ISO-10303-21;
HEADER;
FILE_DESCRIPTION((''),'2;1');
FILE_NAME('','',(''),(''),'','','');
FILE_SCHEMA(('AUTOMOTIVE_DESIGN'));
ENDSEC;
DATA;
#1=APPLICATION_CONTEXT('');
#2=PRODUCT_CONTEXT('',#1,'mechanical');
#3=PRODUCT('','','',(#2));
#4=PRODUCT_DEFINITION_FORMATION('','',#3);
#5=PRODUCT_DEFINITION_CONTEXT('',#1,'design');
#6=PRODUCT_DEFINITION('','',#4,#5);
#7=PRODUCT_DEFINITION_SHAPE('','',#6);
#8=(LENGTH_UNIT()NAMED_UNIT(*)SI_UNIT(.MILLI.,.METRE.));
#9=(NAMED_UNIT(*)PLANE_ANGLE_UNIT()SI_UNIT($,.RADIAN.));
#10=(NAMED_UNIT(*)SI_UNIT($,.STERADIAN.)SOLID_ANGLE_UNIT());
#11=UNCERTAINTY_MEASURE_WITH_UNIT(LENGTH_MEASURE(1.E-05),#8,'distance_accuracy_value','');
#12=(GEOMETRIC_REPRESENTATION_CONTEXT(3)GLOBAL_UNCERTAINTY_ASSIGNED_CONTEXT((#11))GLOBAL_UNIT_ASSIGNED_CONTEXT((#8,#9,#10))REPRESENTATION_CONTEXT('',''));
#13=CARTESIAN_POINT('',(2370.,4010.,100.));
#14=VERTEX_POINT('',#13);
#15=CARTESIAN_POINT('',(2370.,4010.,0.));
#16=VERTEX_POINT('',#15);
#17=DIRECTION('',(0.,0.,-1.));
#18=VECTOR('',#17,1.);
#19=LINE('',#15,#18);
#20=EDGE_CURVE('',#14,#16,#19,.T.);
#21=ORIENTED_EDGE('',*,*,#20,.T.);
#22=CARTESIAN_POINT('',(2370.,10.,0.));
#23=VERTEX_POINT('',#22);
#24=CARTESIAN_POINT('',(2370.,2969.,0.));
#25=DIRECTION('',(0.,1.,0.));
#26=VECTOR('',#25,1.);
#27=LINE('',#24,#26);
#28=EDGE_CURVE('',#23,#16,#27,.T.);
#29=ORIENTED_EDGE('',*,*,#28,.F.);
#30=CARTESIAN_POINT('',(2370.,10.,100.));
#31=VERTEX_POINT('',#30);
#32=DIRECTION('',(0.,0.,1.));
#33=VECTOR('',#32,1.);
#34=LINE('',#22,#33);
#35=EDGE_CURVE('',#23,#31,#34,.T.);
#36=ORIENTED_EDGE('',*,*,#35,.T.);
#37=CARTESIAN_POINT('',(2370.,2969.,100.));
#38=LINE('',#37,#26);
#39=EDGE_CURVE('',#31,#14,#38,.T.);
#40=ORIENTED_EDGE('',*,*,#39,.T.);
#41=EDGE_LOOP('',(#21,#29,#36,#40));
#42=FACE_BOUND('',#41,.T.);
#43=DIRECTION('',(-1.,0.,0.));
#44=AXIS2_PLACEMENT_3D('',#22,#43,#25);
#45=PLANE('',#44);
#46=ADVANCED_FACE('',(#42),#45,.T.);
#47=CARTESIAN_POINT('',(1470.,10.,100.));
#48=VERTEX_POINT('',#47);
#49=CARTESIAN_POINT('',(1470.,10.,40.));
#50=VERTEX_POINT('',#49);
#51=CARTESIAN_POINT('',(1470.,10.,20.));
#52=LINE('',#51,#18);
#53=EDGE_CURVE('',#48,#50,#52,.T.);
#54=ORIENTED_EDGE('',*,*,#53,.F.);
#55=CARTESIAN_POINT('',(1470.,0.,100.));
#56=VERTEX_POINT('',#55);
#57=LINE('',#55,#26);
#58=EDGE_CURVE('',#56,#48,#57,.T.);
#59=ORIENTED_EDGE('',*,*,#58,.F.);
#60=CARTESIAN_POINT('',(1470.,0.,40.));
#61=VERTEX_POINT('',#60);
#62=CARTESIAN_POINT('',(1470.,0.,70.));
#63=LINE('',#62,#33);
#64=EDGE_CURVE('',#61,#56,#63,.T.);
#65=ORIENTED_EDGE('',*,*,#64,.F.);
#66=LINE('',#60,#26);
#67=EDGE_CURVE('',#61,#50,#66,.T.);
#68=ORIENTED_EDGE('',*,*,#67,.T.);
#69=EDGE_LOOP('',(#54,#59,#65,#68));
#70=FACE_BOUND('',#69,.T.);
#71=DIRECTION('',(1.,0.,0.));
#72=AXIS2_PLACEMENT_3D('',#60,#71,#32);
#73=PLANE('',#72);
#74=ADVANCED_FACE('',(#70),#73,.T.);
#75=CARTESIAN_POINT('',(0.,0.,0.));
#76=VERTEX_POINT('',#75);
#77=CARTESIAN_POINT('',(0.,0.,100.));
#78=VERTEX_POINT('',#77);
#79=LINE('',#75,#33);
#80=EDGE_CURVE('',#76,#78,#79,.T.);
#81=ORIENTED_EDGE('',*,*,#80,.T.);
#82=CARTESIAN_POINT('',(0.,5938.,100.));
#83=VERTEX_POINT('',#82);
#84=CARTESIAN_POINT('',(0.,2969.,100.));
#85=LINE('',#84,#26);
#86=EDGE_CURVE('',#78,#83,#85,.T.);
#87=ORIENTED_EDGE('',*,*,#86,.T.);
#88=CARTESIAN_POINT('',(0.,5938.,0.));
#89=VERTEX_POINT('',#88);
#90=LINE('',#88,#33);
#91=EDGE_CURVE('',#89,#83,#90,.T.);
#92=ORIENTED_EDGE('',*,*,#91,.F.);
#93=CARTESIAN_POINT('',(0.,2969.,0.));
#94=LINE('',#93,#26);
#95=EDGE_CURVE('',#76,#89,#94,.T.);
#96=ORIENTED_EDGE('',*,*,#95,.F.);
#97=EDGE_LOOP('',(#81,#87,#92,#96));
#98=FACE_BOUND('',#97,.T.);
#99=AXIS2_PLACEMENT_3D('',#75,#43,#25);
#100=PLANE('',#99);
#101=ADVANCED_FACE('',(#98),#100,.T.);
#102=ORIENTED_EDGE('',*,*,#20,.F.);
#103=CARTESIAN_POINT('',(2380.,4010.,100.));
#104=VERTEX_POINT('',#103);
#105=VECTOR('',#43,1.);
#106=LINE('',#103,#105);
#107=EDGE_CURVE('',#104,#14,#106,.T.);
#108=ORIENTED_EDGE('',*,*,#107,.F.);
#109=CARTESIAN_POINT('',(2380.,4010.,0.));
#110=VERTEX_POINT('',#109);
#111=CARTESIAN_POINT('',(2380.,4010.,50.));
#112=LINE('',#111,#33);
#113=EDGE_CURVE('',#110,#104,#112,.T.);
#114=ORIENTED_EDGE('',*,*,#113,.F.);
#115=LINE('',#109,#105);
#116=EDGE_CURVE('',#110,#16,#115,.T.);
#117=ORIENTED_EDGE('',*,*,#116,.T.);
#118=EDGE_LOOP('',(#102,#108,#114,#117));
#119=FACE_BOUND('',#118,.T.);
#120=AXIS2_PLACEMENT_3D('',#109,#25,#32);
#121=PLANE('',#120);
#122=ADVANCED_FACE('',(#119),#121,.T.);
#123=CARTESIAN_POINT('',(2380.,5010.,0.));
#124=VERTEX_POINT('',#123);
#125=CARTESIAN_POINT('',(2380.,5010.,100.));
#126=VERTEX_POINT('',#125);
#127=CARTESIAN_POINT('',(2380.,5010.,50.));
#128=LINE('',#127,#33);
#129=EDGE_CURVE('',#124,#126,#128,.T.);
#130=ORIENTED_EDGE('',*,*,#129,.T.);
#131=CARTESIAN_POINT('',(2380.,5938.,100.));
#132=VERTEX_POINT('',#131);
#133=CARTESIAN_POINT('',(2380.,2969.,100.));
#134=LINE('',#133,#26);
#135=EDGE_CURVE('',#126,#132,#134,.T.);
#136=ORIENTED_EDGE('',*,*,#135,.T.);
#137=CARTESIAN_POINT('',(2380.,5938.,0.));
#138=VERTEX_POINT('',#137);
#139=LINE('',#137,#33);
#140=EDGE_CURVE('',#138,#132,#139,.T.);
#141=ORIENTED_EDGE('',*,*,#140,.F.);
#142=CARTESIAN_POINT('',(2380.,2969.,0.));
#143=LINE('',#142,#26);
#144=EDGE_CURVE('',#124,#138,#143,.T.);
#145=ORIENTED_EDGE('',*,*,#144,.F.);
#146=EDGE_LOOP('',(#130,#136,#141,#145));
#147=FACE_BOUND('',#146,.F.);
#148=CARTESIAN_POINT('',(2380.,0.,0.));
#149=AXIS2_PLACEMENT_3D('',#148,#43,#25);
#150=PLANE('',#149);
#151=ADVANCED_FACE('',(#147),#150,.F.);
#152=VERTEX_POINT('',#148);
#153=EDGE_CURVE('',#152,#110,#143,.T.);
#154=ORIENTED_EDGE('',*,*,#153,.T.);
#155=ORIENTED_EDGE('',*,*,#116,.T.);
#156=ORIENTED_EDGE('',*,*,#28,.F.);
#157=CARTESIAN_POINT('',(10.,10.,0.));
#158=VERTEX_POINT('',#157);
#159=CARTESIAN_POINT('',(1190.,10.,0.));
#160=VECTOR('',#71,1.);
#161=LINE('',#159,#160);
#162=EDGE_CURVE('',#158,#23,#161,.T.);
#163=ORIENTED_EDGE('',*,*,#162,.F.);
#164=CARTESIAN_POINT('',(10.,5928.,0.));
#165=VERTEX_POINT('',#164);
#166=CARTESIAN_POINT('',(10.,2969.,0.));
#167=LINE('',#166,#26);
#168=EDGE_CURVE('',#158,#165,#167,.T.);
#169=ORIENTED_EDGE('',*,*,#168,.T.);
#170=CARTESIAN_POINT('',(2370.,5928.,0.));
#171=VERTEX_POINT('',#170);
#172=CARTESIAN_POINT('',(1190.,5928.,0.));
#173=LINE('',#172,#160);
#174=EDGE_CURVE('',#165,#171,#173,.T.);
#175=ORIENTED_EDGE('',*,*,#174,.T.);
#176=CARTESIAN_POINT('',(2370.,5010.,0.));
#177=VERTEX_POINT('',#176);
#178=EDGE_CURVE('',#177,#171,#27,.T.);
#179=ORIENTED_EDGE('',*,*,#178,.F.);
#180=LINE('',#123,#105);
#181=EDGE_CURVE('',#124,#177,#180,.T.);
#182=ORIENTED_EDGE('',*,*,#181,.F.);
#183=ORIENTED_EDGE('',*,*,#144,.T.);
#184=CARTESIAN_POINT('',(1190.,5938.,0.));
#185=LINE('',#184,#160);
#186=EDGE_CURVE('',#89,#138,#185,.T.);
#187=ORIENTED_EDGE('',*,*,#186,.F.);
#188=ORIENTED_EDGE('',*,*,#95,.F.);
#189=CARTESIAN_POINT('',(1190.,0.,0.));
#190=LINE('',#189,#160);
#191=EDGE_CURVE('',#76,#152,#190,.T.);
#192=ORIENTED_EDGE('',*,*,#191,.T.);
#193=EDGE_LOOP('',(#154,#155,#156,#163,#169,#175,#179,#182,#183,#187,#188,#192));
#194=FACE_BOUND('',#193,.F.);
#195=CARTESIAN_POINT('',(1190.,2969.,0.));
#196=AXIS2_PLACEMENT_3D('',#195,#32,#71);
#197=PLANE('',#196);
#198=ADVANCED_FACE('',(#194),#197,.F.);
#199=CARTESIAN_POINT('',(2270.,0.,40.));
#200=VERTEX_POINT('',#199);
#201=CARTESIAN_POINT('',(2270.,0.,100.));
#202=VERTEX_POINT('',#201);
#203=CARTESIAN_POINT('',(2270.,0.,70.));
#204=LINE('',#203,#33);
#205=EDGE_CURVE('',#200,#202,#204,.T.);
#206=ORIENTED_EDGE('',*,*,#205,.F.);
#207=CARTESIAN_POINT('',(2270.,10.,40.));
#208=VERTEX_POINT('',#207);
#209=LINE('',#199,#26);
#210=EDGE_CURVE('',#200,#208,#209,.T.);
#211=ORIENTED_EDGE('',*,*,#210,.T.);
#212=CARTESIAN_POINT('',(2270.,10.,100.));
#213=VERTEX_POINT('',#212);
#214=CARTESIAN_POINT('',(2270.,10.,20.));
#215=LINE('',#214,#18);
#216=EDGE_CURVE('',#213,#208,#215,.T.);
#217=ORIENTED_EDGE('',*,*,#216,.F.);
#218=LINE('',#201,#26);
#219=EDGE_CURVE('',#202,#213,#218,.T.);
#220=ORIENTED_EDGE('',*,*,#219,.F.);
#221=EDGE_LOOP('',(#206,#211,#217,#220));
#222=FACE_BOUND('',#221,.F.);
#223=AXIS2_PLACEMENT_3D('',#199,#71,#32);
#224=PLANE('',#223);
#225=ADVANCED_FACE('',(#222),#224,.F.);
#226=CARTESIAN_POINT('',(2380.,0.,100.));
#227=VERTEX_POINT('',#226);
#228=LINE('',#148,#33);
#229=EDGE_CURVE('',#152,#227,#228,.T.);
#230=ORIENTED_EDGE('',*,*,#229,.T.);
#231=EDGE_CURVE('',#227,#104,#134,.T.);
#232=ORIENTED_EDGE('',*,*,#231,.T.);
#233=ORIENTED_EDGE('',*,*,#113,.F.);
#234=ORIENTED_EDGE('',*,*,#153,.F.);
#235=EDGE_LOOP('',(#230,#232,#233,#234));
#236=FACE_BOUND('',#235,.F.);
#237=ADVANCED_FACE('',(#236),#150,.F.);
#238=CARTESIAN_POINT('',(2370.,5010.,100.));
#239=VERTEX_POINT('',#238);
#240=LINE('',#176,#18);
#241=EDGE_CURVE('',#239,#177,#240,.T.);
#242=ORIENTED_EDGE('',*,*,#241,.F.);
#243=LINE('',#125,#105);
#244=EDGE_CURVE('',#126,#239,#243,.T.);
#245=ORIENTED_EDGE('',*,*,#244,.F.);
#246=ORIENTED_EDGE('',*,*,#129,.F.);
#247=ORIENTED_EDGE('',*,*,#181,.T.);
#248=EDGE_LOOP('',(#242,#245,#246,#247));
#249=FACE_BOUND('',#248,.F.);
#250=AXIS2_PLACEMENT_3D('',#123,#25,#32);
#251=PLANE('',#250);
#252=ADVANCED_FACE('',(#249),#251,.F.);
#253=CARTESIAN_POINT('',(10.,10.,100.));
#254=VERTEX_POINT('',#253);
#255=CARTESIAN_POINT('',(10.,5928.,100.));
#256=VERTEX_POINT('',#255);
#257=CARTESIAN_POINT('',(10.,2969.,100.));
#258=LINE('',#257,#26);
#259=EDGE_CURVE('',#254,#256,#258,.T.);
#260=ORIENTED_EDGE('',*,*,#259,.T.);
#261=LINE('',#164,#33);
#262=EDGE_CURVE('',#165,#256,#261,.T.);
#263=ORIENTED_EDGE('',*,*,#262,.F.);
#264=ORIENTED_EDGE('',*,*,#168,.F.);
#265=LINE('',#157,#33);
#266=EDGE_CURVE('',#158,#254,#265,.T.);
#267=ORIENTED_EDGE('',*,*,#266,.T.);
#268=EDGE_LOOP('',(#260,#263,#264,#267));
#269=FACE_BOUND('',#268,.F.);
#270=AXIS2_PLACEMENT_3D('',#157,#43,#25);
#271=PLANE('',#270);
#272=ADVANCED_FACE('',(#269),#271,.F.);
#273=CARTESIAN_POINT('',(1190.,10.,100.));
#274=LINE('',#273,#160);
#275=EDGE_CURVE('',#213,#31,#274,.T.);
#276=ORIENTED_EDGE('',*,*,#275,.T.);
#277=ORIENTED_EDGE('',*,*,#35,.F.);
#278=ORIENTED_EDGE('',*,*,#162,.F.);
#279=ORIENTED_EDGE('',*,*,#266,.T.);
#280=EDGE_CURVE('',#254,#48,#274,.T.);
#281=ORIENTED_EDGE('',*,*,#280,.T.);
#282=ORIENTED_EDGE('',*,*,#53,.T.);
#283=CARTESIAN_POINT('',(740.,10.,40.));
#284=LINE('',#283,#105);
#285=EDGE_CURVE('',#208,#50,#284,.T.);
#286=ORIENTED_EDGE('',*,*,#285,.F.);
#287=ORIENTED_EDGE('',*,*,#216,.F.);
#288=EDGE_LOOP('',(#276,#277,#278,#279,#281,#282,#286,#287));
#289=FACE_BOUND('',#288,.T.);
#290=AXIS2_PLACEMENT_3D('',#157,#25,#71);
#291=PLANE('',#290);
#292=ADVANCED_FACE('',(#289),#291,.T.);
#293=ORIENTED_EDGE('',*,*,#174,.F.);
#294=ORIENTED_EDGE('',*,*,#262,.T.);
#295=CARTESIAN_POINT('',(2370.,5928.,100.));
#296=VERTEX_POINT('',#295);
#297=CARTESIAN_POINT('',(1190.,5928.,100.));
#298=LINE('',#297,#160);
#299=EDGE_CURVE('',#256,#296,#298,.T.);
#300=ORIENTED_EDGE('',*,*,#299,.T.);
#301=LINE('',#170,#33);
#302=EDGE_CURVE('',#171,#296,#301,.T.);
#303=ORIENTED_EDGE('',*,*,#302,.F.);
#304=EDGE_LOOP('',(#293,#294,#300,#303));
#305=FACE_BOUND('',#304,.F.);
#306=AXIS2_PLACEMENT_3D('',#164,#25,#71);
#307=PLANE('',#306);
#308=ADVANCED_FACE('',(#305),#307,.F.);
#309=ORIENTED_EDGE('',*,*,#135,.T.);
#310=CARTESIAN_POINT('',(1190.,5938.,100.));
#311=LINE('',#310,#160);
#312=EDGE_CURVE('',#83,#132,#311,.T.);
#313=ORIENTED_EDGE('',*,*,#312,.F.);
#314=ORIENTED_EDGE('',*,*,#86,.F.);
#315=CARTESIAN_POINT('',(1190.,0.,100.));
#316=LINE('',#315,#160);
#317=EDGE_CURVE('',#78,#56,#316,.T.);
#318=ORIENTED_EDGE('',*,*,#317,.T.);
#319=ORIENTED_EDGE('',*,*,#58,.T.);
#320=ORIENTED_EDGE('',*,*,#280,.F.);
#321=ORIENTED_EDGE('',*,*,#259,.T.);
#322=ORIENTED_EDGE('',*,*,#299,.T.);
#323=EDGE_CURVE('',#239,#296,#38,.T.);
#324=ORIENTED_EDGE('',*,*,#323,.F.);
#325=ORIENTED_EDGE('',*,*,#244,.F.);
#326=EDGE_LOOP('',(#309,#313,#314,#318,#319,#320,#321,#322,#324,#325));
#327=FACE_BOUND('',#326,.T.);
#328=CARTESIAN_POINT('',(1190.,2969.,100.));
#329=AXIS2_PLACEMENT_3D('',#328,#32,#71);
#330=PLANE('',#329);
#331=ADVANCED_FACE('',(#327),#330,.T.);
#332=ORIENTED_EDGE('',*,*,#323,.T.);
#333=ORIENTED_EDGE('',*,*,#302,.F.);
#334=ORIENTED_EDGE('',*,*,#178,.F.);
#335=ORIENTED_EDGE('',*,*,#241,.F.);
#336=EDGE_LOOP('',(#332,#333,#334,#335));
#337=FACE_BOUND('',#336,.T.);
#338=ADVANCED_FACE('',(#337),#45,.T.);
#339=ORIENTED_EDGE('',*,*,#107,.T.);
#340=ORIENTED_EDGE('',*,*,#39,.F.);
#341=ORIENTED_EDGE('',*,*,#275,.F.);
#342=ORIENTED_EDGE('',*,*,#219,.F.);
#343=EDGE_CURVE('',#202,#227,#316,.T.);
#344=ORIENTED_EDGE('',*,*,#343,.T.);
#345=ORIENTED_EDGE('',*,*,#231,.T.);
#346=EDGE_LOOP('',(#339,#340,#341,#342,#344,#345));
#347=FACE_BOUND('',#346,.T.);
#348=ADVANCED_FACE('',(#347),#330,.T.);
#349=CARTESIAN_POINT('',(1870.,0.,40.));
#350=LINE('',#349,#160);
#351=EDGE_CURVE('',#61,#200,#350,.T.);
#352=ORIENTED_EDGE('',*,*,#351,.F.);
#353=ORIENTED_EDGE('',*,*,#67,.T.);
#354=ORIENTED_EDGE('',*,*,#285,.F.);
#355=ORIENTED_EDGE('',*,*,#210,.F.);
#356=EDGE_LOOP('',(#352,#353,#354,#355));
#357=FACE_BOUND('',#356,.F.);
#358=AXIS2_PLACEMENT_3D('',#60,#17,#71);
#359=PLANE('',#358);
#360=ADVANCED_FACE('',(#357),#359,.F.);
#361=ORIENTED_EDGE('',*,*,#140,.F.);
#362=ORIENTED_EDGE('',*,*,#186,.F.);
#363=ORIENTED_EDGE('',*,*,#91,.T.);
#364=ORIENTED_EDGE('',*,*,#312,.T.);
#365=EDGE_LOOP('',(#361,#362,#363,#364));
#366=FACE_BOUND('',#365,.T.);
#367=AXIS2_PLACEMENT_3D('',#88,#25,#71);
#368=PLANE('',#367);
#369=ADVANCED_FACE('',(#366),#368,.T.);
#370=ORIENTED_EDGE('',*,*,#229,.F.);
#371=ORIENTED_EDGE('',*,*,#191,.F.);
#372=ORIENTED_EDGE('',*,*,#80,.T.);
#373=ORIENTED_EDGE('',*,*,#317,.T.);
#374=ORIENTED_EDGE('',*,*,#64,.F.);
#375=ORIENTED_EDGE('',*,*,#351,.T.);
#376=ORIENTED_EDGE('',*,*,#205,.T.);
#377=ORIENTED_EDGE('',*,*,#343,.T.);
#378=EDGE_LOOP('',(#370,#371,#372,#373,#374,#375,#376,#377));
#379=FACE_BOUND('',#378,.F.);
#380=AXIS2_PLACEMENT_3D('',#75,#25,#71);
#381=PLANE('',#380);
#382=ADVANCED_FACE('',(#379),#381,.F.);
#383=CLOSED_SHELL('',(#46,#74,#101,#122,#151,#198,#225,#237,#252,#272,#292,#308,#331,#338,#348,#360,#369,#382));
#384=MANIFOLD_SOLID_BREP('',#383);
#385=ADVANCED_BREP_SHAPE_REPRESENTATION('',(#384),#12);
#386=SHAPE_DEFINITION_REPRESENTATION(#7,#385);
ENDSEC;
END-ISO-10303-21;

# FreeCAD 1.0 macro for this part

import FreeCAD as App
import Part
import Sketcher
Q = App.Units.Quantity

doc = App.newDocument("Part")
body = doc.addObject("PartDesign::Body", "Body")

# Sketch on XY plane
sketch1 = body.newObject("Sketcher::SketchObject", "Sketch")
sketch1.AttachmentSupport = (doc.getObject("XY_Plane"), [""])
sketch1.MapMode = "FlatFace"
sketch1.addGeometry(Part.LineSegment(App.Vector(0, 5938, 0), App.Vector(0, 0, 0)), False)
sketch1.addGeometry(Part.LineSegment(App.Vector(0, 0, 0), App.Vector(2380, 0, 0)), False)
sketch1.addGeometry(Part.LineSegment(App.Vector(2380, 0, 0), App.Vector(2380, 5938, 0)), False)
sketch1.addGeometry(Part.LineSegment(App.Vector(2380, 5938, 0), App.Vector(0, 5938, 0)), False)
sketch1.addGeometry(Part.LineSegment(App.Vector(2370, 10, 0), App.Vector(10, 10, 0)), False)
sketch1.addGeometry(Part.LineSegment(App.Vector(10, 10, 0), App.Vector(10, 5928, 0)), False)
sketch1.addGeometry(Part.LineSegment(App.Vector(10, 5928, 0), App.Vector(2370, 5928, 0)), False)
sketch1.addGeometry(Part.LineSegment(App.Vector(2370, 5928, 0), App.Vector(2370, 10, 0)), False)
sketch1.addConstraint(Sketcher.Constraint("Coincident", 0, 2, 1, 1))
sketch1.addConstraint(Sketcher.Constraint("Coincident", 1, 2, 2, 1))
sketch1.addConstraint(Sketcher.Constraint("Coincident", 2, 2, 3, 1))
sketch1.addConstraint(Sketcher.Constraint("Coincident", 3, 2, 0, 1))
sketch1.addConstraint(Sketcher.Constraint("Coincident", 4, 2, 5, 1))
sketch1.addConstraint(Sketcher.Constraint("Coincident", 5, 2, 6, 1))
sketch1.addConstraint(Sketcher.Constraint("Coincident", 6, 2, 7, 1))
sketch1.addConstraint(Sketcher.Constraint("Coincident", 7, 2, 4, 1))
sketch1.addConstraint(Sketcher.Constraint("Vertical", 0))
sketch1.addConstraint(Sketcher.Constraint("Horizontal", 1))
sketch1.addConstraint(Sketcher.Constraint("Vertical", 2))
sketch1.addConstraint(Sketcher.Constraint("Horizontal", 3))
sketch1.addConstraint(Sketcher.Constraint("Horizontal", 4))
sketch1.addConstraint(Sketcher.Constraint("Vertical", 5))
sketch1.addConstraint(Sketcher.Constraint("Horizontal", 6))
sketch1.addConstraint(Sketcher.Constraint("Vertical", 7))
sketch1.addConstraint(Sketcher.Constraint("Coincident", 0, 2, -1, 1))
sketch1.addConstraint(Sketcher.Constraint("DistanceX", 1, 1, 1, 2, Q("2380 mm")))
sketch1.addConstraint(Sketcher.Constraint("DistanceX", 4, 2, 4, 1, Q("2360 mm")))
sketch1.addConstraint(Sketcher.Constraint("DistanceY", 0, 2, 0, 1, Q("5938 mm")))
sketch1.addConstraint(Sketcher.Constraint("DistanceY", 5, 1, 5, 2, Q("5918 mm")))
sketch1.addConstraint(Sketcher.Constraint("DistanceX", -1, 1, 4, 2, Q("10 mm")))
sketch1.addConstraint(Sketcher.Constraint("DistanceY", -1, 1, 4, 2, Q("10 mm")))
pad1 = body.newObject("PartDesign::Pad", "Pad")
pad1.Profile = sketch1
pad1.Length = 100

# Sketch on YZ plane
sketch2 = body.newObject("Sketcher::SketchObject", "Sketch001")
sketch2.AttachmentSupport = (doc.getObject("YZ_Plane"), [""])
sketch2.MapMode = "FlatFace"
sketch2.AttachmentOffset = App.Placement(App.Vector(0, 0, 2380), App.Rotation())
sketch2.addGeometry(Part.LineSegment(App.Vector(4010, 100, 0), App.Vector(4010, 0, 0)), False)
sketch2.addGeometry(Part.LineSegment(App.Vector(4010, 0, 0), App.Vector(5010, 0, 0)), False)
sketch2.addGeometry(Part.LineSegment(App.Vector(5010, 0, 0), App.Vector(5010, 100, 0)), False)
sketch2.addGeometry(Part.LineSegment(App.Vector(5010, 100, 0), App.Vector(4010, 100, 0)), False)
sketch2.addConstraint(Sketcher.Constraint("Coincident", 0, 2, 1, 1))
sketch2.addConstraint(Sketcher.Constraint("Coincident", 1, 2, 2, 1))
sketch2.addConstraint(Sketcher.Constraint("Coincident", 2, 2, 3, 1))
sketch2.addConstraint(Sketcher.Constraint("Coincident", 3, 2, 0, 1))
sketch2.addConstraint(Sketcher.Constraint("Vertical", 0))
sketch2.addConstraint(Sketcher.Constraint("Horizontal", 1))
sketch2.addConstraint(Sketcher.Constraint("Vertical", 2))
sketch2.addConstraint(Sketcher.Constraint("Horizontal", 3))
sketch2.addConstraint(Sketcher.Constraint("PointOnObject", 0, 2, -1))
sketch2.addConstraint(Sketcher.Constraint("DistanceX", 1, 1, 1, 2, Q("1000 mm")))
sketch2.addConstraint(Sketcher.Constraint("DistanceY", 0, 2, 0, 1, Q("100 mm")))
sketch2.addConstraint(Sketcher.Constraint("DistanceX", -1, 1, 0, 2, Q("4010 mm")))
pocket1 = body.newObject("PartDesign::Pocket", "Pocket")
pocket1.Profile = sketch2
pocket1.Length = 25

# Sketch on XZ plane
sketch3 = body.newObject("Sketcher::SketchObject", "Sketch002")
sketch3.AttachmentSupport = (doc.getObject("XZ_Plane"), [""])
sketch3.MapMode = "FlatFace"
sketch3.addGeometry(Part.LineSegment(App.Vector(1470, 100, 0), App.Vector(1470, 40, 0)), False)
sketch3.addGeometry(Part.LineSegment(App.Vector(1470, 40, 0), App.Vector(2270, 40, 0)), False)
sketch3.addGeometry(Part.LineSegment(App.Vector(2270, 40, 0), App.Vector(2270, 100, 0)), False)
sketch3.addGeometry(Part.LineSegment(App.Vector(2270, 100, 0), App.Vector(1470, 100, 0)), False)
sketch3.addConstraint(Sketcher.Constraint("Coincident", 0, 2, 1, 1))
sketch3.addConstraint(Sketcher.Constraint("Coincident", 1, 2, 2, 1))
sketch3.addConstraint(Sketcher.Constraint("Coincident", 2, 2, 3, 1))
sketch3.addConstraint(Sketcher.Constraint("Coincident", 3, 2, 0, 1))
sketch3.addConstraint(Sketcher.Constraint("Vertical", 0))
sketch3.addConstraint(Sketcher.Constraint("Horizontal", 1))
sketch3.addConstraint(Sketcher.Constraint("Vertical", 2))
sketch3.addConstraint(Sketcher.Constraint("Horizontal", 3))
sketch3.addConstraint(Sketcher.Constraint("DistanceX", 1, 1, 1, 2, Q("800 mm")))
sketch3.addConstraint(Sketcher.Constraint("DistanceY", 0, 2, 0, 1, Q("60 mm")))
sketch3.addConstraint(Sketcher.Constraint("DistanceX", -1, 1, 0, 2, Q("1470 mm")))
sketch3.addConstraint(Sketcher.Constraint("DistanceY", -1, 1, 0, 2, Q("40 mm")))
pocket2 = body.newObject("PartDesign::Pocket", "Pocket001")
pocket2.Profile = sketch3
pocket2.Length = 25

doc.recompute()
